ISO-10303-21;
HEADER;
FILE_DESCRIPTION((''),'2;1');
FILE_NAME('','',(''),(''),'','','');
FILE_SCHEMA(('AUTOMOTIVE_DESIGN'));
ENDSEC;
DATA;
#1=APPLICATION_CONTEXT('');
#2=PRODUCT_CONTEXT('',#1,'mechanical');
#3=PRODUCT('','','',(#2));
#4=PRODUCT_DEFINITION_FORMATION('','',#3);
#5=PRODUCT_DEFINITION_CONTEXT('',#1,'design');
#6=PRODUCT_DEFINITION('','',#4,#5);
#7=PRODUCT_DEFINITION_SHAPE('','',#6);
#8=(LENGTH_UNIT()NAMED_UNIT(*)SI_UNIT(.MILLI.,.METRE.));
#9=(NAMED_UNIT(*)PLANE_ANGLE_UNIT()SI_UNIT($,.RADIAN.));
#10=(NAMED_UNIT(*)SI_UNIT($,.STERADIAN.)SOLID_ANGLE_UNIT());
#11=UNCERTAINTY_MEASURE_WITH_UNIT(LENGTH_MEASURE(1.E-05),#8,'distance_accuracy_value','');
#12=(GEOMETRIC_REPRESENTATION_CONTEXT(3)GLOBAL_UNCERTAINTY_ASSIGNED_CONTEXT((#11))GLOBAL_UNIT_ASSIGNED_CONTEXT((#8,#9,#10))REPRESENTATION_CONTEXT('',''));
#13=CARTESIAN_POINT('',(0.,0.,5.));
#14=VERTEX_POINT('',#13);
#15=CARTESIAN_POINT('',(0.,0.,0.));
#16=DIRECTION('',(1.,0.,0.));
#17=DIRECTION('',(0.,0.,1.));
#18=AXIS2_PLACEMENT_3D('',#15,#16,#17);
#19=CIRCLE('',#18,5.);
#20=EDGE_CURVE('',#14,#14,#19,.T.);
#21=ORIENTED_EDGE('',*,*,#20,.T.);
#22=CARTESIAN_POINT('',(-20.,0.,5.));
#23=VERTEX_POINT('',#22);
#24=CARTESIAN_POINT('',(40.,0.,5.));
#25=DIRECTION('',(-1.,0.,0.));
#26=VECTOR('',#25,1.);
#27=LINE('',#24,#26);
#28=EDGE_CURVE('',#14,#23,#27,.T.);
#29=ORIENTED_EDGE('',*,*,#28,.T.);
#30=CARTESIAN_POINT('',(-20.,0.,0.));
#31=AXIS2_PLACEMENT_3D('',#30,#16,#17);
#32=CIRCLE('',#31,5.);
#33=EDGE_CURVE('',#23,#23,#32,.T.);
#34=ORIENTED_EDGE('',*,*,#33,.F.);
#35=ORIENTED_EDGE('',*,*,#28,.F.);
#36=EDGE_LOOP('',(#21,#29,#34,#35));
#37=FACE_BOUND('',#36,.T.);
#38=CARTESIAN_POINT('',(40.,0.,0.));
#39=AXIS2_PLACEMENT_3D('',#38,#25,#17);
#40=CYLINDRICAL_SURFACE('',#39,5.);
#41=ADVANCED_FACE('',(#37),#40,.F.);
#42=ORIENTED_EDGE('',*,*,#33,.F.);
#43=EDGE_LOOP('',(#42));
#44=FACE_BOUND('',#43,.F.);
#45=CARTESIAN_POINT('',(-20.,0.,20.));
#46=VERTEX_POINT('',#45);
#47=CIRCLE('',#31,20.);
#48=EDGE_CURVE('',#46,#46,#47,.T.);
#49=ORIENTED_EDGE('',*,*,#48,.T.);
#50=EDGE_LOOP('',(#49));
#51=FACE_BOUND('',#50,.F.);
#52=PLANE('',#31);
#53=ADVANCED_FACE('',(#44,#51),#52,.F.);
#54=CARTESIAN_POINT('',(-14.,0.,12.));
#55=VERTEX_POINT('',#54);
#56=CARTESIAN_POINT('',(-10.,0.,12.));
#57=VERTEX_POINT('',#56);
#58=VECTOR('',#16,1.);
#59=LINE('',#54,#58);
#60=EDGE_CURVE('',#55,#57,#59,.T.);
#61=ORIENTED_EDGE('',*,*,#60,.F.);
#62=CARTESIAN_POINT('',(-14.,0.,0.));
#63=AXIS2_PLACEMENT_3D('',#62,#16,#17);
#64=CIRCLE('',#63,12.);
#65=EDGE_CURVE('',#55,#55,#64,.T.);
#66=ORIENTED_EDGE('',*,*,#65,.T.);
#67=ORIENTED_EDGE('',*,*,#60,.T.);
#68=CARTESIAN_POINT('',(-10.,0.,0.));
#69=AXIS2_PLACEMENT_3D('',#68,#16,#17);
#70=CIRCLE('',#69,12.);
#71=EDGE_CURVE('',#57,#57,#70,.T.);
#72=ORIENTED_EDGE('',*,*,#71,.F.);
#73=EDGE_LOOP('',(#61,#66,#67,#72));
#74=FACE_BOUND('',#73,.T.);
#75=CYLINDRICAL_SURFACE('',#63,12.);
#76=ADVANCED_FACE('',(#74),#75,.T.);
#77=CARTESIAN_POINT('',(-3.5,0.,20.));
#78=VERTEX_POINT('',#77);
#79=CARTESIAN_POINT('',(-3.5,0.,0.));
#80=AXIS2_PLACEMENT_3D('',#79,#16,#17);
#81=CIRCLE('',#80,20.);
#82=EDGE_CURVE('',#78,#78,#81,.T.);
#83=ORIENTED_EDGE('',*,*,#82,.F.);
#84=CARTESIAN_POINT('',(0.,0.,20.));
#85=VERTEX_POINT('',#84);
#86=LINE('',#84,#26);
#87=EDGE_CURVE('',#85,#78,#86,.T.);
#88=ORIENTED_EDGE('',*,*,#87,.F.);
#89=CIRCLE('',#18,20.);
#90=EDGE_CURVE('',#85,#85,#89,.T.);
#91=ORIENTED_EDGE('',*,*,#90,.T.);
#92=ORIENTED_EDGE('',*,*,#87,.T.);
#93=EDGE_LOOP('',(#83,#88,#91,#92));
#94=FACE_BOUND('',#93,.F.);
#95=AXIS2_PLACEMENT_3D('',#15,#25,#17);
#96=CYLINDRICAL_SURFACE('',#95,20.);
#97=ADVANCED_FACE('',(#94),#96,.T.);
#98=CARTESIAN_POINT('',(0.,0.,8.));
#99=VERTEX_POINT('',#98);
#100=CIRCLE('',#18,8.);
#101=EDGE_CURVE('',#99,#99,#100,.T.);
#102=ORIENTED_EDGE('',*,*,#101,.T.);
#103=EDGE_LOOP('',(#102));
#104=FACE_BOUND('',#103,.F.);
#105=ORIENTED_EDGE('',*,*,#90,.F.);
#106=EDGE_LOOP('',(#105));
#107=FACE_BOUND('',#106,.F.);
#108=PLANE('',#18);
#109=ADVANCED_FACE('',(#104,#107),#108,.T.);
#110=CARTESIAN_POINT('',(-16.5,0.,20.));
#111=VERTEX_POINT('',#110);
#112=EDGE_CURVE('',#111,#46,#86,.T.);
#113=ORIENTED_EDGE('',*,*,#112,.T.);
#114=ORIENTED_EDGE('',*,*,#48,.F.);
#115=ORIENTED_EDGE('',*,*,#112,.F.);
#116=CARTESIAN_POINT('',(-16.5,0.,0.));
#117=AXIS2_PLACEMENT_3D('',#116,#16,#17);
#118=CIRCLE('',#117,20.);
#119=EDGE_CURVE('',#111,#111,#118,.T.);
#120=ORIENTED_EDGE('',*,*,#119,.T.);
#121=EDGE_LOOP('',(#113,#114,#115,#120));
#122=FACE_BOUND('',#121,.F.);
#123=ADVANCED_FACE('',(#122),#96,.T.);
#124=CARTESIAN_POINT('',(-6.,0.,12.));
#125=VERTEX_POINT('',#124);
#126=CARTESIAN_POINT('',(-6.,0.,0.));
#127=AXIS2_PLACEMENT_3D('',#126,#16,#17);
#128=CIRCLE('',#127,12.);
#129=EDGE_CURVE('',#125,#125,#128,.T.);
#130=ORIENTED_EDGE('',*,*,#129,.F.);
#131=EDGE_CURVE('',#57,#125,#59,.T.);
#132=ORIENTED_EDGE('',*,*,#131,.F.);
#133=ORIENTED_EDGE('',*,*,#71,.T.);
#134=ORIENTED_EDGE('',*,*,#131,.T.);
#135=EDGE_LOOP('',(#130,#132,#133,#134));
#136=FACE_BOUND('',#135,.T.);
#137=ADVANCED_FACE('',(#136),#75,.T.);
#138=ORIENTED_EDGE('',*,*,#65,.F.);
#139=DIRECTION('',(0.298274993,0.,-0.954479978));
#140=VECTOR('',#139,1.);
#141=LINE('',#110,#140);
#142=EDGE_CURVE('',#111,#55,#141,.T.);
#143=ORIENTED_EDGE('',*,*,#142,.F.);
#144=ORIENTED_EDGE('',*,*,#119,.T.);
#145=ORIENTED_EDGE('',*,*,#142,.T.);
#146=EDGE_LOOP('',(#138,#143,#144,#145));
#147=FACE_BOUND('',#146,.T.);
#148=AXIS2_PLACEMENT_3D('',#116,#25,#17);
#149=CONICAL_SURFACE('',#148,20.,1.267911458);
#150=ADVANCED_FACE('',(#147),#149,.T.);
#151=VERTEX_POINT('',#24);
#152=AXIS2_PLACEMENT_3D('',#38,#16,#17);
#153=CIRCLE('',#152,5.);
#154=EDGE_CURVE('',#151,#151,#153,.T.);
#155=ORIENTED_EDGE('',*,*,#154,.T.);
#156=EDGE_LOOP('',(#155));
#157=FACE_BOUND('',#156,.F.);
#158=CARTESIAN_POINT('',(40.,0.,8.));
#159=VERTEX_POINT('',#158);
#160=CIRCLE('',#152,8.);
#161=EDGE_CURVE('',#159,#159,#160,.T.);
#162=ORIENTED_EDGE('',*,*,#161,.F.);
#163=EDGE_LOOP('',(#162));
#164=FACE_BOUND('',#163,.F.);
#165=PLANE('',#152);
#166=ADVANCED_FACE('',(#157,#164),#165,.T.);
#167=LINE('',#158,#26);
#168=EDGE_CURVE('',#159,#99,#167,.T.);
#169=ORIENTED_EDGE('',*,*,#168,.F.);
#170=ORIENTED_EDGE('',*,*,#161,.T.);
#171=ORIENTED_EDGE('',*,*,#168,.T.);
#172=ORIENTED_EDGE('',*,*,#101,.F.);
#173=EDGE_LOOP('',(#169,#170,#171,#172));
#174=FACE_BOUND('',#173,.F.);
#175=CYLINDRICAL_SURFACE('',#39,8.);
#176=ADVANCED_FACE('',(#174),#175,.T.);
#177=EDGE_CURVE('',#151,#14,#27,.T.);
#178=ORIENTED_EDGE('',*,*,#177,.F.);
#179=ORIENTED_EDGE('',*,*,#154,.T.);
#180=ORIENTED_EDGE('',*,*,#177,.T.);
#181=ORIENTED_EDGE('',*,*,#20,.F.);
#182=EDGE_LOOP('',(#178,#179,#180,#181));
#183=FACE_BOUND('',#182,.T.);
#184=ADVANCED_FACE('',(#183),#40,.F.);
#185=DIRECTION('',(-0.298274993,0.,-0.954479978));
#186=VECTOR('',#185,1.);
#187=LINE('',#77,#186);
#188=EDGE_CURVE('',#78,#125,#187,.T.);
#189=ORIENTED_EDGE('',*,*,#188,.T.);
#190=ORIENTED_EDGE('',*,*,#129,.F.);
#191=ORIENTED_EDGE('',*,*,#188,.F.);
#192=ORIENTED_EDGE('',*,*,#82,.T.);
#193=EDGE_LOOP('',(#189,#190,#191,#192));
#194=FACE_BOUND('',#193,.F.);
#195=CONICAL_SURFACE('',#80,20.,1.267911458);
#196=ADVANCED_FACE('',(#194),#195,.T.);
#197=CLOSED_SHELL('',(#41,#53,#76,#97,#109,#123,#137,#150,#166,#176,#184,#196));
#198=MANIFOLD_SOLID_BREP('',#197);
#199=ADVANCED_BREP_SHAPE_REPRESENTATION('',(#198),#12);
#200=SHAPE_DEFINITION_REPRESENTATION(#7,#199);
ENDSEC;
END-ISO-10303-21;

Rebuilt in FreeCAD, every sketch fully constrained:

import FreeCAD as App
import Part
import Sketcher

V = App.Vector
Q = App.Units.Quantity


def add_polygon(sketch, points):
    """Adds a closed chain of lines whose ends are joined by coincident constraints."""
    first, n = sketch.GeometryCount, len(points)
    for a, b in zip(points, points[1:] + points[:1]):
        sketch.addGeometry(Part.LineSegment(App.Vector(*a, 0), App.Vector(*b, 0)), False)
    for i in range(n):
        sketch.addConstraint(Sketcher.Constraint("Coincident", first + i, 2, first + (i + 1) % n, 1))

doc = App.newDocument("Part")
params = doc.addObject("Spreadsheet::Sheet", "Params")
for row, (alias, value) in enumerate([
    ("sketch1_width", "60 mm"),
    ("sketch1_width2", "8 mm"),
    ("revolution_angle", "360 deg"),
], start=1):
    params.set(f"A{row}", alias)
    params.set(f"B{row}", "=" + value)
    params.setAlias(f"B{row}", alias)

body = doc.addObject("PartDesign::Body", "Body")

# Sketch on XZ plane
sketch1 = body.newObject("Sketcher::SketchObject", "Sketch")
sketch1.AttachmentSupport = (doc.getObject("XZ_Plane"), [""])
sketch1.MapMode = "FlatFace"
add_polygon(sketch1, [(-3.5, 20), (0, 20), (0, 8), (40, 8), (40, 5), (-20, 5), (-20, 20), (-16.5, 20), (-14, 12), (-6, 12)])  # lines 0-9
sketch1.addConstraint([
    Sketcher.Constraint("Horizontal", 0),
    Sketcher.Constraint("Vertical", 1),
    Sketcher.Constraint("Horizontal", 2),
    Sketcher.Constraint("Vertical", 3),
    Sketcher.Constraint("Horizontal", 4),
    Sketcher.Constraint("Vertical", 5),
    Sketcher.Constraint("Horizontal", 6),
    Sketcher.Constraint("Horizontal", 8),
    Sketcher.Constraint("PointOnObject", 0, 2, -2),
    Sketcher.Constraint("Horizontal", 0, 2, 5, 2),
    Sketcher.Constraint("Equal", 0, 6),
    Sketcher.Constraint("Equal", 7, 9),
    Sketcher.Constraint("DistanceX", 4, 2, 4, 1, Q("60 mm")),
    Sketcher.Constraint("DistanceX", 8, 1, 8, 2, Q("8 mm")),
    Sketcher.Constraint("DistanceY", -1, 1, 0, 2, Q("20 mm")),
    Sketcher.Constraint("DistanceY", -1, 1, 1, 2, Q("8 mm")),
    Sketcher.Constraint("DistanceY", -1, 1, 3, 2, Q("5 mm")),
    Sketcher.Constraint("DistanceX", 4, 2, -1, 1, Q("20 mm")),
    Sketcher.Constraint("DistanceY", 7, 2, 6, 2, Q("8 mm")),
    Sketcher.Constraint("DistanceX", 6, 2, 9, 2, Q("13 mm")),
])
sketch1.setExpression("Constraints[22]", "Params.sketch1_width")
sketch1.setExpression("Constraints[23]", "Params.sketch1_width2")
revolution = body.newObject("PartDesign::Revolution", "Revolution")
revolution.Profile = sketch1
revolution.ReferenceAxis = (sketch1, ["H_Axis"])
revolution.setExpression("Angle", "Params.revolution_angle")

doc.recompute()
